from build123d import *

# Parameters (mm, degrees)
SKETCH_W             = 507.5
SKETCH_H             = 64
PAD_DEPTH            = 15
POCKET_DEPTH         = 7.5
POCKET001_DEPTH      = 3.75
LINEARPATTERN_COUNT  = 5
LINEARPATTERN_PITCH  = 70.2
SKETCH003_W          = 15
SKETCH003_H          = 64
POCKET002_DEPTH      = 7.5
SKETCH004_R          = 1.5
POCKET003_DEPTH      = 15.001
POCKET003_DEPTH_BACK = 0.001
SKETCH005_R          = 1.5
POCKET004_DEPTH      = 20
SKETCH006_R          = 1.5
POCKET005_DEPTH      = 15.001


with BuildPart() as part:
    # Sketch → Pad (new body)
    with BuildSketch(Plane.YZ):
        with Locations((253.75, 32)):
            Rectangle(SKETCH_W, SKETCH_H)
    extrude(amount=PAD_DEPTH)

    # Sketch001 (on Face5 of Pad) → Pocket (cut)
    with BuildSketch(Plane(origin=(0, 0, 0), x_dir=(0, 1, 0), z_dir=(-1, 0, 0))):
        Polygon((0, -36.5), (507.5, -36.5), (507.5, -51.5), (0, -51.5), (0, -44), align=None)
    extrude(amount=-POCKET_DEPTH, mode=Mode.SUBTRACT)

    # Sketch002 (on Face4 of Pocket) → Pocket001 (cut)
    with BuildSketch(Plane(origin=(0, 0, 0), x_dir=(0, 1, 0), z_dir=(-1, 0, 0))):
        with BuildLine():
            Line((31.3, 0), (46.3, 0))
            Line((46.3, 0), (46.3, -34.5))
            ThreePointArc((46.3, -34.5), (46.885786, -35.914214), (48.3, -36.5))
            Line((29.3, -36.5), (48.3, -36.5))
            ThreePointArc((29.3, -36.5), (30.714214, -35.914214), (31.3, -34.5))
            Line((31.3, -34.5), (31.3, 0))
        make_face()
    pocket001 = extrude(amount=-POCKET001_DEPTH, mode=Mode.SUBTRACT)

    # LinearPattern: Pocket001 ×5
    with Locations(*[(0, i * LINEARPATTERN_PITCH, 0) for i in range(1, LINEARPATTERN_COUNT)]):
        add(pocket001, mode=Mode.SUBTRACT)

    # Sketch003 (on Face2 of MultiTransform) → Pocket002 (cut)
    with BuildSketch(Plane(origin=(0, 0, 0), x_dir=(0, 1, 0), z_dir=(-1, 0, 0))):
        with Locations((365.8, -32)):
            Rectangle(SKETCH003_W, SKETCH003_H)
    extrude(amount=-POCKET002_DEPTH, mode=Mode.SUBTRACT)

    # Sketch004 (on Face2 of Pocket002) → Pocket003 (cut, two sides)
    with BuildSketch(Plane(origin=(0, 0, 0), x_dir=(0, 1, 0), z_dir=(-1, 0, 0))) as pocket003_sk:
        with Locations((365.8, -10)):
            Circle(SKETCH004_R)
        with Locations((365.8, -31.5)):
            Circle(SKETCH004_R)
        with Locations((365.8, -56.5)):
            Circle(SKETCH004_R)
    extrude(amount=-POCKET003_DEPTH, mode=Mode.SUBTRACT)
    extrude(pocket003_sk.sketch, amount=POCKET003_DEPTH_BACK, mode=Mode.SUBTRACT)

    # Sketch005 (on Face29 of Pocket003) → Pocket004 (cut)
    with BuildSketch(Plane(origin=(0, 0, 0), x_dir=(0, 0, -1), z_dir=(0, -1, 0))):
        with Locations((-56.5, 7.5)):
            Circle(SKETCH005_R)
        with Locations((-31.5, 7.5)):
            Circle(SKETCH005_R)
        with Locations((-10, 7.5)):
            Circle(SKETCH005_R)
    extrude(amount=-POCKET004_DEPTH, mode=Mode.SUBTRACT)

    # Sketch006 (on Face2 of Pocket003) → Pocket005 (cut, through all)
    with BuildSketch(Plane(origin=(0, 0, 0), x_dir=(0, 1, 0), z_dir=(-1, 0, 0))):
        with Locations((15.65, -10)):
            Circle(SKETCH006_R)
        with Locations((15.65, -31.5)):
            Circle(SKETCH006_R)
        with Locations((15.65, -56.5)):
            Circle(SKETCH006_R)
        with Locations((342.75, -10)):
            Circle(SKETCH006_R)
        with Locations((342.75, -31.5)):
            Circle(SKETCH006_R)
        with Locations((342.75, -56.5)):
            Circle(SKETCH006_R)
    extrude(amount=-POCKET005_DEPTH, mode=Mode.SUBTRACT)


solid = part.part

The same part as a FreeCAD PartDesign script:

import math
import FreeCAD as App
import Part
import Sketcher

V = App.Vector


def add_polygon(sketch, points):
    """Adds a closed chain of lines whose ends are joined by coincident constraints."""
    first, n = sketch.GeometryCount, len(points)
    for a, b in zip(points, points[1:] + points[:1]):
        sketch.addGeometry(Part.LineSegment(App.Vector(*a, 0), App.Vector(*b, 0)), False)
    for i in range(n):
        sketch.addConstraint(Sketcher.Constraint("Coincident", first + i, 2, first + (i + 1) % n, 1))

doc = App.newDocument("Part")
body = doc.addObject("PartDesign::Body", "Body")

# Sketch on YZ plane
sketch1 = body.newObject("Sketcher::SketchObject", "Sketch")
sketch1.AttachmentSupport = (doc.getObject("YZ_Plane"), [""])
sketch1.MapMode = "FlatFace"
add_polygon(sketch1, [(0, 64), (0, 0), (508, 0), (508, 64)])  # lines 0-3
sketch1.addConstraint([
    Sketcher.Constraint("Vertical", 0),
    Sketcher.Constraint("Horizontal", 1),
    Sketcher.Constraint("Vertical", 2),
    Sketcher.Constraint("Horizontal", 3),
    Sketcher.Constraint("Coincident", 0, 2, -1, 1),
    Sketcher.Constraint("DistanceY", 0, 2, 0, 1, 64.0),
    Sketcher.Constraint("DistanceX", 1, 1, 1, 2, 507.5),
])
pad1 = body.newObject("PartDesign::Pad", "Pad")
pad1.Profile = sketch1
pad1.Length = 15

# Sketch on YZ plane
sketch2 = body.newObject("Sketcher::SketchObject", "Sketch001")
sketch2.AttachmentSupport = (doc.getObject("YZ_Plane"), [""])
sketch2.MapMode = "FlatFace"
add_polygon(sketch2, [(508, 36), (0, 36), (0, 52), (508, 52)])  # lines 0-3
sketch2.addConstraint([
    Sketcher.Constraint("Horizontal", 0),
    Sketcher.Constraint("Vertical", 1),
    Sketcher.Constraint("Horizontal", 2),
    Sketcher.Constraint("Vertical", 3),
    Sketcher.Constraint("PointOnObject", 0, 2, -2),
    Sketcher.Constraint("DistanceY", 1, 1, 1, 2, 15.0),
    Sketcher.Constraint("DistanceX", 0, 2, 0, 1, 507.5),
    Sketcher.Constraint("DistanceY", -1, 1, 0, 2, 36.5),
])
pocket1 = body.newObject("PartDesign::Pocket", "Pocket")
pocket1.Profile = sketch2
pocket1.Length = 7.5
pocket1.Reversed = True

# Sketch on YZ plane
sketch3 = body.newObject("Sketcher::SketchObject", "Sketch002")
sketch3.AttachmentSupport = (doc.getObject("YZ_Plane"), [""])
sketch3.MapMode = "FlatFace"
sketch3.addGeometry([
    Part.LineSegment(V(46.3, 0, 0), V(31.3, 0, 0)),  # 0
    Part.LineSegment(V(31.3, 0, 0), V(31.3, 34.5, 0)),  # 1
    Part.ArcOfCircle(Part.Circle(V(29.3, 34.5, 0), V(0, 0, 1), 2), math.radians(0), math.radians(90)),  # 2
    Part.LineSegment(V(29.3, 36.5, 0), V(48.3, 36.5, 0)),  # 3
    Part.ArcOfCircle(Part.Circle(V(48.3, 34.5, 0), V(0, 0, 1), 2), math.radians(90), math.radians(180)),  # 4
    Part.LineSegment(V(46.3, 34.5, 0), V(46.3, 0, 0)),  # 5
], False)
sketch3.addConstraint([
    Sketcher.Constraint("Coincident", 0, 2, 1, 1),
    Sketcher.Constraint("Tangent", 1, 2, 2, 1),
    Sketcher.Constraint("Tangent", 2, 2, 3, 1),
    Sketcher.Constraint("Tangent", 3, 2, 4, 1),
    Sketcher.Constraint("Tangent", 4, 2, 5, 1),
    Sketcher.Constraint("Coincident", 5, 2, 0, 1),
    Sketcher.Constraint("Horizontal", 0),
    Sketcher.Constraint("Vertical", 1),
    Sketcher.Constraint("Horizontal", 3),
    Sketcher.Constraint("Vertical", 5),
    Sketcher.Constraint("Equal", 2, 4),
    Sketcher.Constraint("PointOnObject", 0, 2, -1),
    Sketcher.Constraint("Radius", 2, 1.999999),
    Sketcher.Constraint("DistanceX", 0, 2, 0, 1, 15.0),
    Sketcher.Constraint("DistanceY", 1, 1, 1, 2, 34.5),
    Sketcher.Constraint("DistanceX", -1, 1, 2, 3, 29.300001),
])
pocket2 = body.newObject("PartDesign::Pocket", "Pocket001")
pocket2.Profile = sketch3
pocket2.Length = 3.75
pocket2.Reversed = True
doc.recompute()

linearpattern = body.newObject("PartDesign::LinearPattern", "LinearPattern")
linearpattern.Originals = [pocket2]
linearpattern.Direction = (doc.getObject("Y_Axis"), [""])
linearpattern.Mode = "offset"
linearpattern.Offset = 70.2
linearpattern.Occurrences = 5
body.Tip = linearpattern

# Sketch on YZ plane
sketch4 = body.newObject("Sketcher::SketchObject", "Sketch003")
sketch4.AttachmentSupport = (doc.getObject("YZ_Plane"), [""])
sketch4.MapMode = "FlatFace"
add_polygon(sketch4, [(358, 0), (358, 64), (373, 64), (373, 0)])  # lines 0-3
sketch4.addConstraint([
    Sketcher.Constraint("Vertical", 0),
    Sketcher.Constraint("Horizontal", 1),
    Sketcher.Constraint("Vertical", 2),
    Sketcher.Constraint("Horizontal", 3),
    Sketcher.Constraint("PointOnObject", 2, 2, -1),
    Sketcher.Constraint("DistanceX", 1, 1, 1, 2, 15.0),
    Sketcher.Constraint("DistanceY", 0, 1, 0, 2, 64.0),
    Sketcher.Constraint("DistanceX", -1, 1, 0, 2, 358.3),
])
pocket3 = body.newObject("PartDesign::Pocket", "Pocket002")
pocket3.Profile = sketch4
pocket3.Length = 7.5
pocket3.Reversed = True

# Sketch on YZ plane
sketch5 = body.newObject("Sketcher::SketchObject", "Sketch004")
sketch5.AttachmentSupport = (doc.getObject("YZ_Plane"), [""])
sketch5.MapMode = "FlatFace"
sketch5.addGeometry([
    Part.Circle(V(365.8, 10, 0), V(0, 0, 1), 1.5),
    Part.Circle(V(365.8, 31.5, 0), V(0, 0, 1), 1.5),
    Part.Circle(V(365.8, 56.5, 0), V(0, 0, 1), 1.5),
], False)
sketch5.addConstraint([
    Sketcher.Constraint("Equal", 0, 1),
    Sketcher.Constraint("Equal", 1, 2),
    Sketcher.Constraint("Vertical", 0, 3, 1, 3),
    Sketcher.Constraint("Vertical", 1, 3, 2, 3),
    Sketcher.Constraint("Diameter", 0, 3.0),
    Sketcher.Constraint("DistanceY", -1, 1, 0, 3, 10.0),
    Sketcher.Constraint("DistanceY", 1, 3, 2, 3, 25.0),
    Sketcher.Constraint("DistanceX", -1, 1, 0, 3, 365.8),
    Sketcher.Constraint("DistanceY", -1, 1, 1, 3, 31.5),
])
pocket4 = body.newObject("PartDesign::Pocket", "Pocket003")
pocket4.Profile = sketch5
pocket4.Type = "ThroughAll"
pocket4.Midplane = True

# Sketch on XZ plane
sketch6 = body.newObject("Sketcher::SketchObject", "Sketch005")
sketch6.AttachmentSupport = (doc.getObject("XZ_Plane"), [""])
sketch6.MapMode = "FlatFace"
sketch6.addGeometry([
    Part.Circle(V(7.5, 56.5, 0), V(0, 0, 1), 1.5),
    Part.Circle(V(7.5, 31.5, 0), V(0, 0, 1), 1.5),
    Part.Circle(V(7.5, 10, 0), V(0, 0, 1), 1.5),
], False)
sketch6.addConstraint([
    Sketcher.Constraint("Equal", 0, 1),
    Sketcher.Constraint("Equal", 1, 2),
    Sketcher.Constraint("Vertical", 0, 3, 1, 3),
    Sketcher.Constraint("Vertical", 1, 3, 2, 3),
    Sketcher.Constraint("Diameter", 0, 3.0),
    Sketcher.Constraint("DistanceY", -1, 1, 2, 3, 10.0),
    Sketcher.Constraint("DistanceY", 1, 3, 0, 3, 25.0),
    Sketcher.Constraint("DistanceX", -1, 1, 0, 3, 7.5),
    Sketcher.Constraint("DistanceY", -1, 1, 0, 3, 56.5),
])
pocket5 = body.newObject("PartDesign::Pocket", "Pocket004")
pocket5.Profile = sketch6
pocket5.Length = 20

# Sketch on YZ plane
sketch7 = body.newObject("Sketcher::SketchObject", "Sketch006")
sketch7.AttachmentSupport = (doc.getObject("YZ_Plane"), [""])
sketch7.MapMode = "FlatFace"
sketch7.addGeometry([
    Part.Circle(V(15.7, 10, 0), V(0, 0, 1), 1.5),  # 0
    Part.Circle(V(15.7, 31.5, 0), V(0, 0, 1), 1.5),  # 1
    Part.Circle(V(15.7, 56.5, 0), V(0, 0, 1), 1.5),  # 2
    Part.Circle(V(342.8, 10, 0), V(0, 0, 1), 1.5),  # 3
    Part.Circle(V(342.8, 31.5, 0), V(0, 0, 1), 1.5),  # 4
    Part.Circle(V(342.8, 56.5, 0), V(0, 0, 1), 1.5),  # 5
], False)
sketch7.addConstraint([
    Sketcher.Constraint("Equal", 0, 1),
    Sketcher.Constraint("Equal", 1, 2),
    Sketcher.Constraint("Equal", 2, 3),
    Sketcher.Constraint("Equal", 3, 4),
    Sketcher.Constraint("Equal", 4, 5),
    Sketcher.Constraint("Horizontal", 0, 3, 3, 3),
    Sketcher.Constraint("Horizontal", 1, 3, 4, 3),
    Sketcher.Constraint("Horizontal", 2, 3, 5, 3),
    Sketcher.Constraint("Vertical", 0, 3, 1, 3),
    Sketcher.Constraint("Vertical", 1, 3, 2, 3),
    Sketcher.Constraint("Vertical", 3, 3, 4, 3),
    Sketcher.Constraint("Vertical", 4, 3, 5, 3),
    Sketcher.Constraint("Diameter", 0, 3.0),
    Sketcher.Constraint("DistanceY", -1, 1, 0, 3, 10.0),
    Sketcher.Constraint("DistanceY", 1, 3, 2, 3, 25.0),
    Sketcher.Constraint("DistanceY", -1, 1, 1, 3, 31.5),
    Sketcher.Constraint("DistanceX", 0, 3, 3, 3, 327.1),
    Sketcher.Constraint("DistanceX", -1, 1, 0, 3, 15.65),
])
pocket6 = body.newObject("PartDesign::Pocket", "Pocket005")
pocket6.Profile = sketch7
pocket6.Type = "ThroughAll"
pocket6.Reversed = True

doc.recompute()
